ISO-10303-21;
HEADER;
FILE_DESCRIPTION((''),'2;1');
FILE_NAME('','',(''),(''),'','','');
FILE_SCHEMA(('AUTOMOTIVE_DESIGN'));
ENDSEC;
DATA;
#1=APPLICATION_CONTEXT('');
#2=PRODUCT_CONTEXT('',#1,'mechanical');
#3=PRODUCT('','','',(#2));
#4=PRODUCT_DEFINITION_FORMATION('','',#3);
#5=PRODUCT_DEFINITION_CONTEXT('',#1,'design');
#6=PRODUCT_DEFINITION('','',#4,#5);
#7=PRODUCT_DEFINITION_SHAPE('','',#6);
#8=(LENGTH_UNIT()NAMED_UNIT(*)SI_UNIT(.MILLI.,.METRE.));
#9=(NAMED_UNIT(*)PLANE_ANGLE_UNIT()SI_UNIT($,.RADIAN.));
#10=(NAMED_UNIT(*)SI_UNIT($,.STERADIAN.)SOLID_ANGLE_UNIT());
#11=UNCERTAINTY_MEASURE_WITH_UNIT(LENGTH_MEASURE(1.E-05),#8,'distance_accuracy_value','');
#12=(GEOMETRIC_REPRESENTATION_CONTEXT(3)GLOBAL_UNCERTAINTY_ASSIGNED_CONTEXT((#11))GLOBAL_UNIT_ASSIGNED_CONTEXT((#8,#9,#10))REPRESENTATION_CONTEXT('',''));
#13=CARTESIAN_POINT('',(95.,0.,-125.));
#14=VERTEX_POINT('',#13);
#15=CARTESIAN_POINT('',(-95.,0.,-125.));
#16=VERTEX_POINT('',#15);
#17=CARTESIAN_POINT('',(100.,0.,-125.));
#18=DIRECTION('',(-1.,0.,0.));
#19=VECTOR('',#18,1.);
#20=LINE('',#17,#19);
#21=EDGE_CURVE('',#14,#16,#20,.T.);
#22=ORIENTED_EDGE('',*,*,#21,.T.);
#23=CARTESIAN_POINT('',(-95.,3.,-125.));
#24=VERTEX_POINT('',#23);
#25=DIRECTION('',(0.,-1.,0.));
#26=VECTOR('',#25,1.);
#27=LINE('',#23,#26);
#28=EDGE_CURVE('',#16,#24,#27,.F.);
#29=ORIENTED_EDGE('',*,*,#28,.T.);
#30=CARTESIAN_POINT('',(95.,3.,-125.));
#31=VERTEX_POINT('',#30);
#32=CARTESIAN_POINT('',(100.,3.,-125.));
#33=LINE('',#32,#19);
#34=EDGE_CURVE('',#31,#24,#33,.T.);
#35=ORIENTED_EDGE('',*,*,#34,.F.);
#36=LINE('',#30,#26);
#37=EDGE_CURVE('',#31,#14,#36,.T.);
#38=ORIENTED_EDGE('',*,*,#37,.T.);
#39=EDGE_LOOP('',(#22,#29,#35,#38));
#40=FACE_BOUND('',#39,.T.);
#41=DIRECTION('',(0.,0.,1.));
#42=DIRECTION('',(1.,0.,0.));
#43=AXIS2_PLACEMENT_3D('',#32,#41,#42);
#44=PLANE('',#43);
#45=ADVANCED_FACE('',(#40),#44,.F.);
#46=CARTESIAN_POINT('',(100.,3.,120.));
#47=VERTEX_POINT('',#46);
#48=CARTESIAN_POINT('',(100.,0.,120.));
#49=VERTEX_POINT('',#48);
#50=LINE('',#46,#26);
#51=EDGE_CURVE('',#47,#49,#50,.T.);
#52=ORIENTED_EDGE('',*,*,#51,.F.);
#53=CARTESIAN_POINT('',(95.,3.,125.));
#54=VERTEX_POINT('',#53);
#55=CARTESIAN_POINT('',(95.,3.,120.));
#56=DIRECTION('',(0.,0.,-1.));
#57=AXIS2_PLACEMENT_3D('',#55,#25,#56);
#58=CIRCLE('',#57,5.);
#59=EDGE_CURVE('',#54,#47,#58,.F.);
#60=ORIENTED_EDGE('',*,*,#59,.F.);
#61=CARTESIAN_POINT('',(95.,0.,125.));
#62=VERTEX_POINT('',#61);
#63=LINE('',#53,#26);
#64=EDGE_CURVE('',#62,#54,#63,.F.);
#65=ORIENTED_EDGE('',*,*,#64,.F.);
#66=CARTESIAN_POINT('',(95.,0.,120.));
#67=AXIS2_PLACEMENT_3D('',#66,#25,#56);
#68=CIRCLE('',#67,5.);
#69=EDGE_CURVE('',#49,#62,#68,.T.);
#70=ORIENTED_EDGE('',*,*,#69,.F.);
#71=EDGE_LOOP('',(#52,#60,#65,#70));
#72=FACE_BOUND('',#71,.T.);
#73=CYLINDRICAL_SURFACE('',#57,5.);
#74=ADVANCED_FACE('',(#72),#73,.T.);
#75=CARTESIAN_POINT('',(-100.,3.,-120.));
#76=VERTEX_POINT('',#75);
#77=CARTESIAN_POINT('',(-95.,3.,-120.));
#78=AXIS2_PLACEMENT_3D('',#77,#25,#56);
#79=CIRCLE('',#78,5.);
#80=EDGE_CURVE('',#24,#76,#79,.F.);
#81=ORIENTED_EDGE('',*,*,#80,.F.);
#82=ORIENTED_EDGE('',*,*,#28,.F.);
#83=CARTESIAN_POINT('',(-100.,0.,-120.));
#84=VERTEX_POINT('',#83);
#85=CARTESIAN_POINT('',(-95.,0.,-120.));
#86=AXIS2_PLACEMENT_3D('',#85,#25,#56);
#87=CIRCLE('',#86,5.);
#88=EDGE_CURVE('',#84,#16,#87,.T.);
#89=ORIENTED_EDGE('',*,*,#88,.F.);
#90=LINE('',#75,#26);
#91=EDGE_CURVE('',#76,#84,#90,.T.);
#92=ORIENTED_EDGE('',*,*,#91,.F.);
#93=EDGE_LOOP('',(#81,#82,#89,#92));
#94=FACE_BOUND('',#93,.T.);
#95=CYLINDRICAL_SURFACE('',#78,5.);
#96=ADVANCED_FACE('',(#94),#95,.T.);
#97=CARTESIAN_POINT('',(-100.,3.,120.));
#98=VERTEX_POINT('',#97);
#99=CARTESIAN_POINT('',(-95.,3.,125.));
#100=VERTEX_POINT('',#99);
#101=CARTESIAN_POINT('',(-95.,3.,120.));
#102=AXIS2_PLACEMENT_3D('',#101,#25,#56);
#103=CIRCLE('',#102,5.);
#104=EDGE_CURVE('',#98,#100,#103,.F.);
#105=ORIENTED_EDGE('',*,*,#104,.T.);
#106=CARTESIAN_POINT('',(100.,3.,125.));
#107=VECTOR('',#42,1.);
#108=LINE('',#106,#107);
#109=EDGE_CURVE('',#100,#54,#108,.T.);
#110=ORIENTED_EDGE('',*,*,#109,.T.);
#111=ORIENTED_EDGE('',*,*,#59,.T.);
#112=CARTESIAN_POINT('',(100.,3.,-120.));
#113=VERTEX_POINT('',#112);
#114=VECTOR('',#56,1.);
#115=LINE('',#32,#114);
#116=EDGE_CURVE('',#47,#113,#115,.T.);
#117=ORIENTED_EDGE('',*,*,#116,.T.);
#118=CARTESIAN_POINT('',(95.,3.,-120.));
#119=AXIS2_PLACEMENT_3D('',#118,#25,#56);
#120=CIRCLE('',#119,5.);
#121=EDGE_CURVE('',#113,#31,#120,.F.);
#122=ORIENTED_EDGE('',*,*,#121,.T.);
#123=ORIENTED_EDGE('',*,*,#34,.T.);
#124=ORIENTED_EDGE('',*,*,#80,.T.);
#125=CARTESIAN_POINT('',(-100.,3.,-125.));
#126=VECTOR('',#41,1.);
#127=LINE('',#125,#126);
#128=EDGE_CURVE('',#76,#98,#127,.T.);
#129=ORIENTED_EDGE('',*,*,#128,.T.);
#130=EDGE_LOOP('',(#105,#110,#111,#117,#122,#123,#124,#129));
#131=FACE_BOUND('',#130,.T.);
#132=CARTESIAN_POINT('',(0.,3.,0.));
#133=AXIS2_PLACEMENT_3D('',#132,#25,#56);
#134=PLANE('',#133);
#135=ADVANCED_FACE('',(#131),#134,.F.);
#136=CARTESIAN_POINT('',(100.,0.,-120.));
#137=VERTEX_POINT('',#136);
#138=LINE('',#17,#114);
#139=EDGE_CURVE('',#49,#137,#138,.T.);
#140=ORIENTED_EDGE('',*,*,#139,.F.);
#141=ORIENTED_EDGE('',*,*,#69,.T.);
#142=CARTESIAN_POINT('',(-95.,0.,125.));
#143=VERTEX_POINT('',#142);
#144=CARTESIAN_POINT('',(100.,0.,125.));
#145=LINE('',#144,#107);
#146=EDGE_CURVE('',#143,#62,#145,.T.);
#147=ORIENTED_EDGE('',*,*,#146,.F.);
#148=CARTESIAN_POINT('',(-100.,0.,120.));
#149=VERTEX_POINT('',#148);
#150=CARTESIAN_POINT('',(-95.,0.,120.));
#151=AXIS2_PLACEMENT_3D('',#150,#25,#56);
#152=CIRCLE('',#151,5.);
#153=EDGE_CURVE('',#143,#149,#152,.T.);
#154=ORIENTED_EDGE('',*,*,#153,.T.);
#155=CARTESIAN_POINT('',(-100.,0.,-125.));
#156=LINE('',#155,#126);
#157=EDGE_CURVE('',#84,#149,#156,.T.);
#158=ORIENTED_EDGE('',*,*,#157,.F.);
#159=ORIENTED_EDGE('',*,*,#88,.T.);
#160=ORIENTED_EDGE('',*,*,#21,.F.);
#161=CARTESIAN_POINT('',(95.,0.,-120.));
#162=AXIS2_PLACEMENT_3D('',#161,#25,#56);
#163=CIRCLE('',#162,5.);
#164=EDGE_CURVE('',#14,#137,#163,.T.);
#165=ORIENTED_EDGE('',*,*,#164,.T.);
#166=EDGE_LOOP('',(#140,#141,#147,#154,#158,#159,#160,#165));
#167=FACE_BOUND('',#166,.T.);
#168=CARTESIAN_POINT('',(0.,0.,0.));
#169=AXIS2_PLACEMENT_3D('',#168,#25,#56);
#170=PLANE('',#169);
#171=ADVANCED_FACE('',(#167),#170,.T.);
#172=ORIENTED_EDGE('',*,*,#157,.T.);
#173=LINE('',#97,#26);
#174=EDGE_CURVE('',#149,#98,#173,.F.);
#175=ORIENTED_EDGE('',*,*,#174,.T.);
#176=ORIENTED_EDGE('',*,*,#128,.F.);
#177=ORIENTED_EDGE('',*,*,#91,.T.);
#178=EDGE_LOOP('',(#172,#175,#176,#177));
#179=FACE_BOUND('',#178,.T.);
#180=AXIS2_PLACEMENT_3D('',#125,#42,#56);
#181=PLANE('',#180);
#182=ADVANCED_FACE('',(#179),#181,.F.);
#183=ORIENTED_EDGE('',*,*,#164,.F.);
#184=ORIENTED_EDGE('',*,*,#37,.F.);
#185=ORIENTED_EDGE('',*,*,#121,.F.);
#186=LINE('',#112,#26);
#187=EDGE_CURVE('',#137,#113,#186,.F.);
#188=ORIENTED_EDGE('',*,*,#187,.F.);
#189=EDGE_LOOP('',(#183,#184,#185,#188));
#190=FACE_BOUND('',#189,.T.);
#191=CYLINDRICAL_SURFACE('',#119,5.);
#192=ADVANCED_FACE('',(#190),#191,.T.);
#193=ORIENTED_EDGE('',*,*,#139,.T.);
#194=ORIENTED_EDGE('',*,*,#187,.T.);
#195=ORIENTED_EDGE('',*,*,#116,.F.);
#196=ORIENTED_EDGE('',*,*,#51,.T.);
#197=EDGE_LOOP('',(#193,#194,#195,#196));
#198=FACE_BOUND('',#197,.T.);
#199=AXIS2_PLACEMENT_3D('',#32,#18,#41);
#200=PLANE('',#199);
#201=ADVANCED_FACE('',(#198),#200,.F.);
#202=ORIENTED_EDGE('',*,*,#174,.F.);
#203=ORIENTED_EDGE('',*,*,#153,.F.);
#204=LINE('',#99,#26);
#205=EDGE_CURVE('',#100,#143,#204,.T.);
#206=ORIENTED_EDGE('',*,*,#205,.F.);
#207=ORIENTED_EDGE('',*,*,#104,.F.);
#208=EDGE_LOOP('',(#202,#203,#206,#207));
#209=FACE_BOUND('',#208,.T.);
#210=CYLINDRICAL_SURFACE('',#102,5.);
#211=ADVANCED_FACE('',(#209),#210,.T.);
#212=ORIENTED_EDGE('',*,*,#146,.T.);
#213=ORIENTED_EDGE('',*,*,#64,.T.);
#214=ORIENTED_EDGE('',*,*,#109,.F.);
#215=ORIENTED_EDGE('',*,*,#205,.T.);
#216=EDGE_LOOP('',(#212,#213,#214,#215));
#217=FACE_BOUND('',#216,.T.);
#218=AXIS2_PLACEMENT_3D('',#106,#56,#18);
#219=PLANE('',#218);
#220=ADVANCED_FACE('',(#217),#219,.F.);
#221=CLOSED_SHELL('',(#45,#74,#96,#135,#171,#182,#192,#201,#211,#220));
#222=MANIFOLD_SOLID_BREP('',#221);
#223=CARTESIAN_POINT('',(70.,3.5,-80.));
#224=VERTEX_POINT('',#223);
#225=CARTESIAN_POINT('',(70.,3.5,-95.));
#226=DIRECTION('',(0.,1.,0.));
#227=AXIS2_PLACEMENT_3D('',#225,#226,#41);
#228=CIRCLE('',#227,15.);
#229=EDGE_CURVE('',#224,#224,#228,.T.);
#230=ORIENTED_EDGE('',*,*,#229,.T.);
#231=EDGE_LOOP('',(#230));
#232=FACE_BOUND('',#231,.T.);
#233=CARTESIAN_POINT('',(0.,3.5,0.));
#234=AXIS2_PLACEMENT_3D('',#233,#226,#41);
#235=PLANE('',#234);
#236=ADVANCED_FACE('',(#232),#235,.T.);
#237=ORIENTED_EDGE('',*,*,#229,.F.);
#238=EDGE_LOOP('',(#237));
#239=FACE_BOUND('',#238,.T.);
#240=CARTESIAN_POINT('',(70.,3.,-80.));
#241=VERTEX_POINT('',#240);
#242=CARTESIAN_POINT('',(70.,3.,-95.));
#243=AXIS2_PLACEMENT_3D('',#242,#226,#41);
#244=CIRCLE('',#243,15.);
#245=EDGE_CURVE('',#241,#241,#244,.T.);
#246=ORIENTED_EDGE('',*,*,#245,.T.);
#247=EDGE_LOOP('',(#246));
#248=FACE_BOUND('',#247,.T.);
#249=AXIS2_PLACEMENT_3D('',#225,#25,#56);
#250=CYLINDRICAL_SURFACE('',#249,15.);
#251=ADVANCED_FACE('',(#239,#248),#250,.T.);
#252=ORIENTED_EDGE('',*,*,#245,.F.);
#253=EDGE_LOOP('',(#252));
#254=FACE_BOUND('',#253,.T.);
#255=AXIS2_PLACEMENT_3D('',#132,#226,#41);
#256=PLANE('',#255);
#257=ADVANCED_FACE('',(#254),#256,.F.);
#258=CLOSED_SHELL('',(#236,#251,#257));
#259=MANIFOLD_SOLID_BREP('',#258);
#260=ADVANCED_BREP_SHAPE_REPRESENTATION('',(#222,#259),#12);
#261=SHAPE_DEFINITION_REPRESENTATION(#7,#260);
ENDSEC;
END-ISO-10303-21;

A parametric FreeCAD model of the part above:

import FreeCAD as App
import Part
import Sketcher
from FreeCAD import Vector


def edges_at(feature, points):
    """Names of the edges that pass closest to the given points."""
    edges = feature.Shape.Edges
    near = lambda p: min(range(len(edges)), key=lambda i: edges[i].distToShape(Part.Vertex(*p))[0])
    return sorted({f"Edge{near(p) + 1}" for p in points})


def add_polygon(sketch, points):
    """Adds a closed chain of lines whose ends are joined by coincident constraints."""
    first, n = sketch.GeometryCount, len(points)
    for a, b in zip(points, points[1:] + points[:1]):
        sketch.addGeometry(Part.LineSegment(App.Vector(*a, 0), App.Vector(*b, 0)), False)
    for i in range(n):
        sketch.addConstraint(Sketcher.Constraint("Coincident", first + i, 2, first + (i + 1) % n, 1))

doc = App.newDocument("Part")
body = doc.addObject("PartDesign::Body", "Body")

sketch1 = doc.addObject("Sketcher::SketchObject", "Sketch")
body.addObject(sketch1)
sketch1.AttachmentSupport = (doc.XZ_Plane, [""])
sketch1.MapMode = "FlatFace"
add_polygon(sketch1, [(-100, -125), (-100, 125), (100, 125), (100, -125)])
sketch1.addConstraint(Sketcher.Constraint("Vertical", 0))
sketch1.addConstraint(Sketcher.Constraint("Horizontal", 1))
sketch1.addConstraint(Sketcher.Constraint("Vertical", 2))
sketch1.addConstraint(Sketcher.Constraint("Horizontal", 3))
sketch1.addConstraint(Sketcher.Constraint("Symmetric", 0, 2, 2, 2, -1, 1))
sketch1.addConstraint(Sketcher.Constraint("DistanceX", 1, 1, 1, 2, 200.0))
sketch1.addConstraint(Sketcher.Constraint("DistanceY", 0, 1, 0, 2, 250.0))
pad1 = doc.addObject("PartDesign::Pad", "Pad")
body.addObject(pad1)
pad1.Profile = sketch1
pad1.Length = 3
pad1.Reversed = True
doc.recompute()

fillet = doc.addObject("PartDesign::Fillet", "Fillet")
body.addObject(fillet)
fillet.Base = (pad1, edges_at(pad1, [
    (-100, 1.5, -125),
    (100, 1.5, -125),
    (100, 1.5, 125),
    (-100, 1.5, 125),
]))
fillet.Radius = 5
body2 = doc.addObject("PartDesign::Body", "Body001")

sketch2 = doc.addObject("Sketcher::SketchObject", "Sketch001")
body2.addObject(sketch2)
sketch2.AttachmentSupport = (doc.getObject("XZ_Plane001"), [""])
sketch2.MapMode = "FlatFace"
sketch2.AttachmentOffset = App.Placement(Vector(0, 0, -3), App.Rotation())
sketch2.addGeometry(Part.Circle(Vector(70, -95, 0), Vector(0, 0, 1), 15), False)
sketch2.addConstraint(Sketcher.Constraint("Diameter", 0, 30.0))
sketch2.addConstraint(Sketcher.Constraint("DistanceX", -1, 1, 0, 3, 70.0))
sketch2.addConstraint(Sketcher.Constraint("DistanceY", 0, 3, -1, 1, 95.0))
pad2 = doc.addObject("PartDesign::Pad", "Pad001")
body2.addObject(pad2)
pad2.Profile = sketch2
pad2.Length = 0.5
pad2.Reversed = True

doc.recompute()
